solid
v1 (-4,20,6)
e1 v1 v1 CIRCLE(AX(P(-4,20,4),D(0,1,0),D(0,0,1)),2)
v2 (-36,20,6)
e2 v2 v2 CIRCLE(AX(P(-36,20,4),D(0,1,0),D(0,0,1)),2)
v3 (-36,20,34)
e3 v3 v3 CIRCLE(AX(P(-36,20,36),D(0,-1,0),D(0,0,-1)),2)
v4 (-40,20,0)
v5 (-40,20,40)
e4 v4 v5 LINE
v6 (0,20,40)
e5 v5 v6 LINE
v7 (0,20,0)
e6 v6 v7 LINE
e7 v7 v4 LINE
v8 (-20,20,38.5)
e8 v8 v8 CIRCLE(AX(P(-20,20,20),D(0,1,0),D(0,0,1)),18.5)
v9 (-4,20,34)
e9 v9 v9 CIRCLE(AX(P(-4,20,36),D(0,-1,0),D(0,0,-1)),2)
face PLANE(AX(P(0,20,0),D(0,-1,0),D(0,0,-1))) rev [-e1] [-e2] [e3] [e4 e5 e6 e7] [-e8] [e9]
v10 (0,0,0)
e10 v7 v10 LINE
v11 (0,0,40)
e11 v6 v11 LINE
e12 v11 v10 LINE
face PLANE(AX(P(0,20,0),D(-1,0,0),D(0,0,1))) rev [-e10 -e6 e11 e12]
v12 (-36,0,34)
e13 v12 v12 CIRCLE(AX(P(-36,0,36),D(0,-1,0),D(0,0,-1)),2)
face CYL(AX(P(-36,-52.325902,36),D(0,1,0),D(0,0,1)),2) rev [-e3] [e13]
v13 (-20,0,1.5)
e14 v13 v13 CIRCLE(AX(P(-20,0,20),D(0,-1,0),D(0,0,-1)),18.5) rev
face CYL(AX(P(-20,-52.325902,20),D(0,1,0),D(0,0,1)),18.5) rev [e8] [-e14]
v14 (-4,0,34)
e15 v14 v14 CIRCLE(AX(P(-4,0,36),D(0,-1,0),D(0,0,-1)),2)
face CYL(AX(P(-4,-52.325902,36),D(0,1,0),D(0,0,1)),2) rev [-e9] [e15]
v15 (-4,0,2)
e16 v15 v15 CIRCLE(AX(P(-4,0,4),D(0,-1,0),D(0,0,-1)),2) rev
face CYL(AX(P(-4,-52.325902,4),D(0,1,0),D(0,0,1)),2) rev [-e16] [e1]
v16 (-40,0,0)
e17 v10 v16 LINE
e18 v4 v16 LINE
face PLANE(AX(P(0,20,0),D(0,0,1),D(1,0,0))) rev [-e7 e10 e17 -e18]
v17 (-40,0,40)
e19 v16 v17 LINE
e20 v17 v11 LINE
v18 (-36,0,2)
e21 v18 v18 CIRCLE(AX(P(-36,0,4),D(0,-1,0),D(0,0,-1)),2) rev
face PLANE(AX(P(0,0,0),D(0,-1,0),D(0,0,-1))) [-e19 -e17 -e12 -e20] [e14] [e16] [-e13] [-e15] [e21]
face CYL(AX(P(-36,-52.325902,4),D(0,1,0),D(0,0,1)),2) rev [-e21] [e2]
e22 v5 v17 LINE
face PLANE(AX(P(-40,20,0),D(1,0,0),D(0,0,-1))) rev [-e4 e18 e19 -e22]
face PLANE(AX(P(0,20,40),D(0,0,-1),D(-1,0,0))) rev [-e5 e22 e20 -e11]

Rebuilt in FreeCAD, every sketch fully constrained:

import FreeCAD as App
import Part
import Sketcher
Q = App.Units.Quantity


def add_polygon(sketch, points):
    """Adds a closed chain of lines whose ends are joined by coincident constraints."""
    first, n = sketch.GeometryCount, len(points)
    for a, b in zip(points, points[1:] + points[:1]):
        sketch.addGeometry(Part.LineSegment(App.Vector(*a, 0), App.Vector(*b, 0)), False)
    for i in range(n):
        sketch.addConstraint(Sketcher.Constraint("Coincident", first + i, 2, first + (i + 1) % n, 1))

doc = App.newDocument("Part")
body = doc.addObject("PartDesign::Body", "Body")

# Sketch on XZ plane
sketch1 = doc.addObject("Sketcher::SketchObject", "Sketch")
body.addObject(sketch1)
sketch1.AttachmentSupport = (doc.XZ_Plane, [""])
sketch1.MapMode = "FlatFace"
add_polygon(sketch1, [(-40, 0), (-40, 40), (0, 40), (0, 0)])  # lines 0-3
sketch1.addConstraint([
    Sketcher.Constraint("Vertical", 0),
    Sketcher.Constraint("Horizontal", 1),
    Sketcher.Constraint("Vertical", 2),
    Sketcher.Constraint("Horizontal", 3),
    Sketcher.Constraint("Coincident", 2, 2, -1, 1),
    Sketcher.Constraint("Equal", 3, 0),
    Sketcher.Constraint("DistanceX", 1, 1, 1, 2, Q("40 mm")),
])
pad1 = doc.addObject("PartDesign::Pad", "Pad")
body.addObject(pad1)
pad1.Profile = sketch1
pad1.Length = 20
pad1.Reversed = True

# Sketch on XZ plane
sketch2 = doc.addObject("Sketcher::SketchObject", "Sketch001")
body.addObject(sketch2)
sketch2.AttachmentSupport = (doc.XZ_Plane, [""])
sketch2.MapMode = "FlatFace"
sketch2.AttachmentOffset = App.Placement(App.Vector(0, 0, -20), App.Rotation())
sketch2.addGeometry([
    Part.Circle(App.Vector(-36, 4, 0), App.Vector(0, 0, 1), 2),  # 0
    Part.Circle(App.Vector(-4, 4, 0), App.Vector(0, 0, 1), 2),  # 1
    Part.Circle(App.Vector(-4, 36, 0), App.Vector(0, 0, 1), 2),  # 2
    Part.Circle(App.Vector(-36, 36, 0), App.Vector(0, 0, 1), 2),  # 3
    Part.Circle(App.Vector(-20, 20, 0), App.Vector(0, 0, 1), 18.5),  # 4
], False)
sketch2.addConstraint([
    Sketcher.Constraint("Equal", 0, 1),
    Sketcher.Constraint("Equal", 1, 2),
    Sketcher.Constraint("Equal", 2, 3),
    Sketcher.Constraint("Horizontal", 0, 3, 1, 3),
    Sketcher.Constraint("Horizontal", 2, 3, 3, 3),
    Sketcher.Constraint("Vertical", 1, 3, 2, 3),
    Sketcher.Constraint("Vertical", 0, 3, 3, 3),
    Sketcher.Constraint("Diameter", 0, Q("4 mm")),
    Sketcher.Constraint("Diameter", 4, Q("37 mm")),
    Sketcher.Constraint("DistanceX", 0, 3, -1, 1, Q("36 mm")),
    Sketcher.Constraint("DistanceY", -1, 1, 0, 3, Q("4 mm")),
    Sketcher.Constraint("DistanceX", 1, 3, -1, 1, Q("4 mm")),
    Sketcher.Constraint("DistanceY", -1, 1, 2, 3, Q("36 mm")),
    Sketcher.Constraint("DistanceX", 4, 3, -1, 1, Q("20 mm")),
    Sketcher.Constraint("DistanceY", -1, 1, 4, 3, Q("20 mm")),
])
pocket1 = doc.addObject("PartDesign::Pocket", "Pocket")
body.addObject(pocket1)
pocket1.Profile = sketch2
pocket1.Length = 20
pocket1.Reversed = True

doc.recompute()
